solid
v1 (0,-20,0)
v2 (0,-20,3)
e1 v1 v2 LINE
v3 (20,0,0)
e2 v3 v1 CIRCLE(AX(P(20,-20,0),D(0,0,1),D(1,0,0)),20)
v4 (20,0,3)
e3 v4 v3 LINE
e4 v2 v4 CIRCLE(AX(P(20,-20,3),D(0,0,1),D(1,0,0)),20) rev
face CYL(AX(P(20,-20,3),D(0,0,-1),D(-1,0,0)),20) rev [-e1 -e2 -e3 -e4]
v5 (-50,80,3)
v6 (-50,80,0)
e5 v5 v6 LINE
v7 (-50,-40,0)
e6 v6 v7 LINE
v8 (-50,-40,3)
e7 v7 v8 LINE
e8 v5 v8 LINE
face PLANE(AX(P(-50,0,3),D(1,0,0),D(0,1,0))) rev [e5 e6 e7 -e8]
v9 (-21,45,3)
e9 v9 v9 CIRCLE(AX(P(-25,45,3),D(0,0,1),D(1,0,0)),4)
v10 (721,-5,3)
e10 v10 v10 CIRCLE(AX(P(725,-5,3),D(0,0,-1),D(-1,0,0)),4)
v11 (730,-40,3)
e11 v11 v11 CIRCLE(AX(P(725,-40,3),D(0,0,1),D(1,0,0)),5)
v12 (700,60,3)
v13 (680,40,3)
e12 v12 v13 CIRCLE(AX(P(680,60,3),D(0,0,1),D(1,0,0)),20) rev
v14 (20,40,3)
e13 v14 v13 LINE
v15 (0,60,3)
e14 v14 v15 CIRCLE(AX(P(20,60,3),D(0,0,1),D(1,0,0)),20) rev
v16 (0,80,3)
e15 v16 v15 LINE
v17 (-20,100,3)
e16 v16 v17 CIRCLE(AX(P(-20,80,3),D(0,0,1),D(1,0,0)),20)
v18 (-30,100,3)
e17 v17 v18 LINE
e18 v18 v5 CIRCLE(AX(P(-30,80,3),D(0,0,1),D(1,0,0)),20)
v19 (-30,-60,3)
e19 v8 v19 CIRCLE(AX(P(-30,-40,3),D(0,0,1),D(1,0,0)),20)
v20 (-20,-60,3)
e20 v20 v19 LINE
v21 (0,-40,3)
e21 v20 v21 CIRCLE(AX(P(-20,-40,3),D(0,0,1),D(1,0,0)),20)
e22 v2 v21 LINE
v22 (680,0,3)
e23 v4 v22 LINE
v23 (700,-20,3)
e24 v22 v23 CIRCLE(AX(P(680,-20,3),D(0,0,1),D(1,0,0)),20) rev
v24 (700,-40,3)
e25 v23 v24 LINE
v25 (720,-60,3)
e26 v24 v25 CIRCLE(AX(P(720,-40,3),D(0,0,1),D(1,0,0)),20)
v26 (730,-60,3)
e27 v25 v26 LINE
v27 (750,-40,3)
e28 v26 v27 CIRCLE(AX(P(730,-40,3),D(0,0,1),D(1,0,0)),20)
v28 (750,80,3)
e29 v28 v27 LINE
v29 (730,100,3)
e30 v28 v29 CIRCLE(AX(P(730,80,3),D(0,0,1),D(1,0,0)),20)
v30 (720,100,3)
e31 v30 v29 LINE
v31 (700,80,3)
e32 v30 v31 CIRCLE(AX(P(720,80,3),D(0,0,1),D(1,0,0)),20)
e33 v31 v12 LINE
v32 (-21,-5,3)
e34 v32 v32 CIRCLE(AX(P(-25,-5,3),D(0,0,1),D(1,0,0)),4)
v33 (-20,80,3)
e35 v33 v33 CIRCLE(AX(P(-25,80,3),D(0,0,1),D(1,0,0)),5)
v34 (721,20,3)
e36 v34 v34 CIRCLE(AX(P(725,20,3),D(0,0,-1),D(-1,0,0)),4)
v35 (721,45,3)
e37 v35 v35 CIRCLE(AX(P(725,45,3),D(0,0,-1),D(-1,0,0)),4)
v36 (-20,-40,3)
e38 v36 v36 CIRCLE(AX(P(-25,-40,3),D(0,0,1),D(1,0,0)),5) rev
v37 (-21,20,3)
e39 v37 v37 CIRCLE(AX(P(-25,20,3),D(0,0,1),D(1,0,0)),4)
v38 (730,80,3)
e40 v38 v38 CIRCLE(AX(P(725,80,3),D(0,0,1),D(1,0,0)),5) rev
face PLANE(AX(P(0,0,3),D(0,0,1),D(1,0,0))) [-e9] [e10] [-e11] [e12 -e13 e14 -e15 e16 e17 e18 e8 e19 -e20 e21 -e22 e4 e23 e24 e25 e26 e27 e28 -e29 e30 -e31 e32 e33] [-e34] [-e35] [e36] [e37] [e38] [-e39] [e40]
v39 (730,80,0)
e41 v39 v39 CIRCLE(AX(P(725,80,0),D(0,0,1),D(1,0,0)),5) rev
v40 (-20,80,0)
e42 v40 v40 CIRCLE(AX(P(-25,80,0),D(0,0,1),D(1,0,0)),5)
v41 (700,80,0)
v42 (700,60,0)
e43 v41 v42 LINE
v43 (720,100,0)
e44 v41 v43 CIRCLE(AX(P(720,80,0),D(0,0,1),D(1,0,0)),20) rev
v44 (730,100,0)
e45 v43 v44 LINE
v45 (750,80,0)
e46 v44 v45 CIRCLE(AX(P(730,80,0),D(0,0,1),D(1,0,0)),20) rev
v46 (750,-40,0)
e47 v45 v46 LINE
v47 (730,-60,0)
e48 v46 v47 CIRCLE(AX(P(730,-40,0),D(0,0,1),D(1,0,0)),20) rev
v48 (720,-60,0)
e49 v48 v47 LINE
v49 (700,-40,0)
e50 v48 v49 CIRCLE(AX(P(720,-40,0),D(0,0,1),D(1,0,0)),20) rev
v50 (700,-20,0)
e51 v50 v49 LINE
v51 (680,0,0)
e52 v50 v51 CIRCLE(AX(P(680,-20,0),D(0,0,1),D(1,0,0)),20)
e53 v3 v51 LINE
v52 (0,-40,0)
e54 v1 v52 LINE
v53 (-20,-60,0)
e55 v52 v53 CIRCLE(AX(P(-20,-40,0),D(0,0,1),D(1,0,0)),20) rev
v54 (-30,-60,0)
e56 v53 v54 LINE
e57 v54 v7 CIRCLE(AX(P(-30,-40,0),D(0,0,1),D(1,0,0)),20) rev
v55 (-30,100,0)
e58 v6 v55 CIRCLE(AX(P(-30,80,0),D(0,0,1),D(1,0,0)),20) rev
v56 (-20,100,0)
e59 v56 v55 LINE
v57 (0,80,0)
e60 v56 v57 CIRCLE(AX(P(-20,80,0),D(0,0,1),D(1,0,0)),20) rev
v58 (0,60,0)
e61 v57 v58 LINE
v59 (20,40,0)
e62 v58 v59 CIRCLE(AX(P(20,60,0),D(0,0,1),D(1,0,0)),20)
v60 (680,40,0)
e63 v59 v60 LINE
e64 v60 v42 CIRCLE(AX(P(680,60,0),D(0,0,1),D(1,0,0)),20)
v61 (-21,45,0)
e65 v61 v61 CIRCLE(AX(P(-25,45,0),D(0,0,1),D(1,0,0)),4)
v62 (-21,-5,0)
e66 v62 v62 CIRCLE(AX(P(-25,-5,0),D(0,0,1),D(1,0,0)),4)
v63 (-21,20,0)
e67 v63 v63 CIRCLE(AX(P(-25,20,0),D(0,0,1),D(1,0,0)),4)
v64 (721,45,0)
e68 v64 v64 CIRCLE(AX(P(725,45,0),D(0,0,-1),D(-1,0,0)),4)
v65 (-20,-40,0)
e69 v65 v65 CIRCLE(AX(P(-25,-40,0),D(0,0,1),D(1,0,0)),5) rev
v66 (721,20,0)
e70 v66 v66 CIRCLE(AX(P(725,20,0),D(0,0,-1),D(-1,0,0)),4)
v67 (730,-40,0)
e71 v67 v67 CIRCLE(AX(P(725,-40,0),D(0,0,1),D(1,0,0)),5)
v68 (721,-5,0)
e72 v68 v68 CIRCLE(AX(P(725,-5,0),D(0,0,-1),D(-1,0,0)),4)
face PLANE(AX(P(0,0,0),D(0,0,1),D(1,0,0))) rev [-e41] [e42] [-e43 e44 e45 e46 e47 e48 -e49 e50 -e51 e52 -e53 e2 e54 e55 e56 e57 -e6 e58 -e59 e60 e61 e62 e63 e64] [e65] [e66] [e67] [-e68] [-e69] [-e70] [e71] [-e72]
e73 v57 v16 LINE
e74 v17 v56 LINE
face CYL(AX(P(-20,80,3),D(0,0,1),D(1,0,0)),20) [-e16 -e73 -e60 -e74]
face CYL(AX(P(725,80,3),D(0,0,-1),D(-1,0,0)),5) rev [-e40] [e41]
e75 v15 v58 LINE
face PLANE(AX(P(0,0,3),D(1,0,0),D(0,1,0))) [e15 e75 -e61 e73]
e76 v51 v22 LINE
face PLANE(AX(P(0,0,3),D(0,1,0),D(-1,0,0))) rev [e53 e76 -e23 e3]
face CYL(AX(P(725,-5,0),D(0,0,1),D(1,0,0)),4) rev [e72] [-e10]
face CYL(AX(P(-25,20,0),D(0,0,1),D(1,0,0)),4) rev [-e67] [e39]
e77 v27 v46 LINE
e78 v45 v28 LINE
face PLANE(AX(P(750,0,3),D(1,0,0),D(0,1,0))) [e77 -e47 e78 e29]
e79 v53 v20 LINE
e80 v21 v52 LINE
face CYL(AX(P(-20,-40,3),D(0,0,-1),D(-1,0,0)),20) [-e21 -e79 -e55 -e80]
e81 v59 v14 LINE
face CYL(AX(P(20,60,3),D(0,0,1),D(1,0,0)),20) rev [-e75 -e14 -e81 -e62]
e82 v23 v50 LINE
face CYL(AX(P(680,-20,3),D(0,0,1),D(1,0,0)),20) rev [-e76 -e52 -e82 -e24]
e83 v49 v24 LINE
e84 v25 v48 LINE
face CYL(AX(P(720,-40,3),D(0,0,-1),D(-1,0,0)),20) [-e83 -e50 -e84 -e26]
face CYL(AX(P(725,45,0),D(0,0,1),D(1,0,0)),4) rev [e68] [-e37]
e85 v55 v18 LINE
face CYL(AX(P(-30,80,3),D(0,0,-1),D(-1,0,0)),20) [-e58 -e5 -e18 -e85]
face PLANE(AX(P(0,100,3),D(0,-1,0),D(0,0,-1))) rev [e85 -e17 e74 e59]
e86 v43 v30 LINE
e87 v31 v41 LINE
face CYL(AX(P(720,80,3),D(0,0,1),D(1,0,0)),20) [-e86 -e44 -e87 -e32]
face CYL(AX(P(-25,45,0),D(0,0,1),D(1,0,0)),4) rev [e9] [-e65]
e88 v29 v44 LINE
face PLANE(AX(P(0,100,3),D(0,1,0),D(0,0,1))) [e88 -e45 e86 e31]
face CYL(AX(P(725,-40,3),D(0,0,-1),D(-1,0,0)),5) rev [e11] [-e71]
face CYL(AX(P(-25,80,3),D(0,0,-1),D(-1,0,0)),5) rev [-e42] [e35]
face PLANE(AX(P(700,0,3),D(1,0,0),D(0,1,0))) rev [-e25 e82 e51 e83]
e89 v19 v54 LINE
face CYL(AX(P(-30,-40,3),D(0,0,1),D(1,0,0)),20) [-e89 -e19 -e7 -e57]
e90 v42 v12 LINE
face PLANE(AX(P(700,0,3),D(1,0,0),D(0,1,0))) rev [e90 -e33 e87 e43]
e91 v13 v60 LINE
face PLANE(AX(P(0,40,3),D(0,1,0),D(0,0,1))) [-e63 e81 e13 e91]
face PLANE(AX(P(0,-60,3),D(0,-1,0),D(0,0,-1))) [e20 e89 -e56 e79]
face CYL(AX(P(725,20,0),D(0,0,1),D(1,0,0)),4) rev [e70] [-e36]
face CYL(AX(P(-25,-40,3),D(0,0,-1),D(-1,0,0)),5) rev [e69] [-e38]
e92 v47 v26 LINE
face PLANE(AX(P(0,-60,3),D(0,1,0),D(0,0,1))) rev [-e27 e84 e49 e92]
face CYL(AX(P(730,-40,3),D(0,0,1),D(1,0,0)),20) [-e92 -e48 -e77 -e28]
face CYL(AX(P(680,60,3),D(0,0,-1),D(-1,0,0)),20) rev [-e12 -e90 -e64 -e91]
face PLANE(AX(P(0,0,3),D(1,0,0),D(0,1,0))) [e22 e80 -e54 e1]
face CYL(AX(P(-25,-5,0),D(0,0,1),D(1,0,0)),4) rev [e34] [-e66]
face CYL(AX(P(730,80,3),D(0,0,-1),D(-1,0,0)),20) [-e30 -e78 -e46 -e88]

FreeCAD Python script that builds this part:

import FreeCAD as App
import Part
import Sketcher
from FreeCAD import Vector


def edges_at(feature, points):
    """Names of the edges that pass closest to the given points."""
    edges = feature.Shape.Edges
    near = lambda p: min(range(len(edges)), key=lambda i: edges[i].distToShape(Part.Vertex(*p))[0])
    return sorted({f"Edge{near(p) + 1}" for p in points})

doc = App.newDocument("Part")
body = doc.addObject("PartDesign::Body", "Body")

# Sketch on XY plane
sketch1 = body.newObject("Sketcher::SketchObject", "Sketch")
sketch1.AttachmentSupport = (doc.getObject("XY_Plane"), [""])
sketch1.MapMode = "FlatFace"
sketch1.addGeometry(Part.LineSegment(Vector(0, 0, 0), Vector(700, 0, 0)), False)
sketch1.addGeometry(Part.LineSegment(Vector(700, 0, 0), Vector(700, -60, 0)), False)
sketch1.addGeometry(Part.LineSegment(Vector(700, -60, 0), Vector(750, -60, 0)), False)
sketch1.addGeometry(Part.LineSegment(Vector(750, -60, 0), Vector(750, 100, 0)), False)
sketch1.addGeometry(Part.LineSegment(Vector(750, 100, 0), Vector(700, 100, 0)), False)
sketch1.addGeometry(Part.LineSegment(Vector(700, 100, 0), Vector(700, 40, 0)), False)
sketch1.addGeometry(Part.LineSegment(Vector(700, 40, 0), Vector(0, 40, 0)), False)
sketch1.addGeometry(Part.LineSegment(Vector(0, 40, 0), Vector(0, 100, 0)), False)
sketch1.addGeometry(Part.LineSegment(Vector(0, 100, 0), Vector(-50, 100, 0)), False)
sketch1.addGeometry(Part.LineSegment(Vector(-50, 100, 0), Vector(-50, -60, 0)), False)
sketch1.addGeometry(Part.LineSegment(Vector(-50, -60, 0), Vector(0, -60, 0)), False)
sketch1.addGeometry(Part.LineSegment(Vector(0, -60, 0), Vector(0, 0, 0)), False)
sketch1.addGeometry(Part.Circle(Vector(-25, 80, 0), Vector(0, 0, 1), 5), False)
sketch1.addGeometry(Part.Circle(Vector(-25, -40, 0), Vector(0, 0, 1), 5), False)
sketch1.addGeometry(Part.Circle(Vector(725, 80, 0), Vector(0, 0, 1), 5), False)
sketch1.addGeometry(Part.Circle(Vector(725, -40, 0), Vector(0, 0, 1), 5), False)
sketch1.addConstraint(Sketcher.Constraint("Coincident", 0, 2, 1, 1))
sketch1.addConstraint(Sketcher.Constraint("Coincident", 1, 2, 2, 1))
sketch1.addConstraint(Sketcher.Constraint("Coincident", 2, 2, 3, 1))
sketch1.addConstraint(Sketcher.Constraint("Coincident", 3, 2, 4, 1))
sketch1.addConstraint(Sketcher.Constraint("Coincident", 4, 2, 5, 1))
sketch1.addConstraint(Sketcher.Constraint("Coincident", 5, 2, 6, 1))
sketch1.addConstraint(Sketcher.Constraint("Coincident", 6, 2, 7, 1))
sketch1.addConstraint(Sketcher.Constraint("Coincident", 7, 2, 8, 1))
sketch1.addConstraint(Sketcher.Constraint("Coincident", 8, 2, 9, 1))
sketch1.addConstraint(Sketcher.Constraint("Coincident", 9, 2, 10, 1))
sketch1.addConstraint(Sketcher.Constraint("Coincident", 10, 2, 11, 1))
sketch1.addConstraint(Sketcher.Constraint("Coincident", 11, 2, 0, 1))
sketch1.addConstraint(Sketcher.Constraint("Horizontal", 0))
sketch1.addConstraint(Sketcher.Constraint("Vertical", 1))
sketch1.addConstraint(Sketcher.Constraint("Horizontal", 2))
sketch1.addConstraint(Sketcher.Constraint("Vertical", 3))
sketch1.addConstraint(Sketcher.Constraint("Horizontal", 4))
sketch1.addConstraint(Sketcher.Constraint("Vertical", 5))
sketch1.addConstraint(Sketcher.Constraint("Horizontal", 6))
sketch1.addConstraint(Sketcher.Constraint("Vertical", 7))
sketch1.addConstraint(Sketcher.Constraint("Horizontal", 8))
sketch1.addConstraint(Sketcher.Constraint("Vertical", 9))
sketch1.addConstraint(Sketcher.Constraint("Horizontal", 10))
sketch1.addConstraint(Sketcher.Constraint("Vertical", 11))
sketch1.addConstraint(Sketcher.Constraint("Coincident", 11, 2, -1, 1))
sketch1.addConstraint(Sketcher.Constraint("Equal", 12, 13))
sketch1.addConstraint(Sketcher.Constraint("Equal", 13, 14))
sketch1.addConstraint(Sketcher.Constraint("Equal", 14, 15))
sketch1.addConstraint(Sketcher.Constraint("PointOnObject", 6, 2, -2))
sketch1.addConstraint(Sketcher.Constraint("Horizontal", 12, 3, 14, 3))
sketch1.addConstraint(Sketcher.Constraint("Horizontal", 13, 3, 15, 3))
sketch1.addConstraint(Sketcher.Constraint("Horizontal", 4, 2, 7, 2))
sketch1.addConstraint(Sketcher.Constraint("Horizontal", 2, 2, 9, 2))
sketch1.addConstraint(Sketcher.Constraint("Vertical", 12, 3, 13, 3))
sketch1.addConstraint(Sketcher.Constraint("Vertical", 14, 3, 15, 3))
sketch1.addConstraint(Sketcher.Constraint("Vertical", 1, 2, 4, 2))
sketch1.addConstraint(Sketcher.Constraint("Equal", 4, 8))
sketch1.addConstraint(Sketcher.Constraint("Equal", 1, 5))
sketch1.addConstraint(Sketcher.Constraint("Diameter", 12, 10.0))
sketch1.addConstraint(Sketcher.Constraint("DistanceX", 0, 1, 0, 2, 700.0))
sketch1.addConstraint(Sketcher.Constraint("DistanceX", 2, 1, 2, 2, 50.0))
sketch1.addConstraint(Sketcher.Constraint("DistanceY", 1, 2, 1, 1, 60.0))
sketch1.addConstraint(Sketcher.Constraint("DistanceY", 3, 1, 3, 2, 160.0))
sketch1.addConstraint(Sketcher.Constraint("DistanceX", 12, 3, -1, 1, 25.0))
sketch1.addConstraint(Sketcher.Constraint("DistanceY", -1, 1, 12, 3, 80.0))
sketch1.addConstraint(Sketcher.Constraint("DistanceY", 13, 3, -1, 1, 40.0))
sketch1.addConstraint(Sketcher.Constraint("DistanceX", -1, 1, 14, 3, 725.0))
pad1 = body.newObject("PartDesign::Pad", "Pad")
pad1.Profile = sketch1
pad1.Length = 3
doc.recompute()

fillet = body.newObject("PartDesign::Fillet", "Fillet")
fillet.Base = (pad1, edges_at(pad1, [
    (0, 0, 1.5),
    (0, -60, 1.5),
    (-50, -60, 1.5),
    (-50, 100, 1.5),
    (0, 100, 1.5),
    (0, 40, 1.5),
    (700, 40, 1.5),
    (700, 100, 1.5),
    (750, 100, 1.5),
    (750, -60, 1.5),
    (700, -60, 1.5),
    (700, 0, 1.5),
]))
fillet.Radius = 20

# Sketch on XY plane
sketch2 = body.newObject("Sketcher::SketchObject", "Sketch001")
sketch2.AttachmentSupport = (doc.getObject("XY_Plane"), [""])
sketch2.MapMode = "FlatFace"
sketch2.AttachmentOffset = App.Placement(Vector(0, 0, 3), App.Rotation())
sketch2.addGeometry(Part.Circle(Vector(-25, 45, 0), Vector(0, 0, 1), 4), False)
sketch2.addGeometry(Part.Circle(Vector(-25, -5, 0), Vector(0, 0, 1), 4), False)
sketch2.addGeometry(Part.Circle(Vector(-25, 20, 0), Vector(0, 0, 1), 4), False)
sketch2.addGeometry(Part.Circle(Vector(725, 20, 0), Vector(0, 0, 1), 4), False)
sketch2.addGeometry(Part.Circle(Vector(725, -5, 0), Vector(0, 0, 1), 4), False)
sketch2.addGeometry(Part.Circle(Vector(725, 45, 0), Vector(0, 0, 1), 4), False)
sketch2.addConstraint(Sketcher.Constraint("Equal", 0, 1))
sketch2.addConstraint(Sketcher.Constraint("Equal", 1, 2))
sketch2.addConstraint(Sketcher.Constraint("Equal", 2, 3))
sketch2.addConstraint(Sketcher.Constraint("Equal", 3, 4))
sketch2.addConstraint(Sketcher.Constraint("Equal", 4, 5))
sketch2.addConstraint(Sketcher.Constraint("Horizontal", 2, 3, 3, 3))
sketch2.addConstraint(Sketcher.Constraint("Horizontal", 1, 3, 4, 3))
sketch2.addConstraint(Sketcher.Constraint("Horizontal", 0, 3, 5, 3))
sketch2.addConstraint(Sketcher.Constraint("Vertical", 0, 3, 1, 3))
sketch2.addConstraint(Sketcher.Constraint("Vertical", 1, 3, 2, 3))
sketch2.addConstraint(Sketcher.Constraint("Vertical", 3, 3, 4, 3))
sketch2.addConstraint(Sketcher.Constraint("Vertical", 4, 3, 5, 3))
sketch2.addConstraint(Sketcher.Constraint("Diameter", 0, 8.0))
sketch2.addConstraint(Sketcher.Constraint("DistanceX", 0, 3, -1, 1, 25.0))
sketch2.addConstraint(Sketcher.Constraint("DistanceY", -1, 1, 0, 3, 45.0))
sketch2.addConstraint(Sketcher.Constraint("DistanceY", 1, 3, -1, 1, 5.0))
sketch2.addConstraint(Sketcher.Constraint("DistanceY", -1, 1, 2, 3, 20.0))
sketch2.addConstraint(Sketcher.Constraint("DistanceX", -1, 1, 3, 3, 725.0))
pocket1 = body.newObject("PartDesign::Pocket", "Pocket")
pocket1.Profile = sketch2
pocket1.Type = "ThroughAll"

doc.recompute()
